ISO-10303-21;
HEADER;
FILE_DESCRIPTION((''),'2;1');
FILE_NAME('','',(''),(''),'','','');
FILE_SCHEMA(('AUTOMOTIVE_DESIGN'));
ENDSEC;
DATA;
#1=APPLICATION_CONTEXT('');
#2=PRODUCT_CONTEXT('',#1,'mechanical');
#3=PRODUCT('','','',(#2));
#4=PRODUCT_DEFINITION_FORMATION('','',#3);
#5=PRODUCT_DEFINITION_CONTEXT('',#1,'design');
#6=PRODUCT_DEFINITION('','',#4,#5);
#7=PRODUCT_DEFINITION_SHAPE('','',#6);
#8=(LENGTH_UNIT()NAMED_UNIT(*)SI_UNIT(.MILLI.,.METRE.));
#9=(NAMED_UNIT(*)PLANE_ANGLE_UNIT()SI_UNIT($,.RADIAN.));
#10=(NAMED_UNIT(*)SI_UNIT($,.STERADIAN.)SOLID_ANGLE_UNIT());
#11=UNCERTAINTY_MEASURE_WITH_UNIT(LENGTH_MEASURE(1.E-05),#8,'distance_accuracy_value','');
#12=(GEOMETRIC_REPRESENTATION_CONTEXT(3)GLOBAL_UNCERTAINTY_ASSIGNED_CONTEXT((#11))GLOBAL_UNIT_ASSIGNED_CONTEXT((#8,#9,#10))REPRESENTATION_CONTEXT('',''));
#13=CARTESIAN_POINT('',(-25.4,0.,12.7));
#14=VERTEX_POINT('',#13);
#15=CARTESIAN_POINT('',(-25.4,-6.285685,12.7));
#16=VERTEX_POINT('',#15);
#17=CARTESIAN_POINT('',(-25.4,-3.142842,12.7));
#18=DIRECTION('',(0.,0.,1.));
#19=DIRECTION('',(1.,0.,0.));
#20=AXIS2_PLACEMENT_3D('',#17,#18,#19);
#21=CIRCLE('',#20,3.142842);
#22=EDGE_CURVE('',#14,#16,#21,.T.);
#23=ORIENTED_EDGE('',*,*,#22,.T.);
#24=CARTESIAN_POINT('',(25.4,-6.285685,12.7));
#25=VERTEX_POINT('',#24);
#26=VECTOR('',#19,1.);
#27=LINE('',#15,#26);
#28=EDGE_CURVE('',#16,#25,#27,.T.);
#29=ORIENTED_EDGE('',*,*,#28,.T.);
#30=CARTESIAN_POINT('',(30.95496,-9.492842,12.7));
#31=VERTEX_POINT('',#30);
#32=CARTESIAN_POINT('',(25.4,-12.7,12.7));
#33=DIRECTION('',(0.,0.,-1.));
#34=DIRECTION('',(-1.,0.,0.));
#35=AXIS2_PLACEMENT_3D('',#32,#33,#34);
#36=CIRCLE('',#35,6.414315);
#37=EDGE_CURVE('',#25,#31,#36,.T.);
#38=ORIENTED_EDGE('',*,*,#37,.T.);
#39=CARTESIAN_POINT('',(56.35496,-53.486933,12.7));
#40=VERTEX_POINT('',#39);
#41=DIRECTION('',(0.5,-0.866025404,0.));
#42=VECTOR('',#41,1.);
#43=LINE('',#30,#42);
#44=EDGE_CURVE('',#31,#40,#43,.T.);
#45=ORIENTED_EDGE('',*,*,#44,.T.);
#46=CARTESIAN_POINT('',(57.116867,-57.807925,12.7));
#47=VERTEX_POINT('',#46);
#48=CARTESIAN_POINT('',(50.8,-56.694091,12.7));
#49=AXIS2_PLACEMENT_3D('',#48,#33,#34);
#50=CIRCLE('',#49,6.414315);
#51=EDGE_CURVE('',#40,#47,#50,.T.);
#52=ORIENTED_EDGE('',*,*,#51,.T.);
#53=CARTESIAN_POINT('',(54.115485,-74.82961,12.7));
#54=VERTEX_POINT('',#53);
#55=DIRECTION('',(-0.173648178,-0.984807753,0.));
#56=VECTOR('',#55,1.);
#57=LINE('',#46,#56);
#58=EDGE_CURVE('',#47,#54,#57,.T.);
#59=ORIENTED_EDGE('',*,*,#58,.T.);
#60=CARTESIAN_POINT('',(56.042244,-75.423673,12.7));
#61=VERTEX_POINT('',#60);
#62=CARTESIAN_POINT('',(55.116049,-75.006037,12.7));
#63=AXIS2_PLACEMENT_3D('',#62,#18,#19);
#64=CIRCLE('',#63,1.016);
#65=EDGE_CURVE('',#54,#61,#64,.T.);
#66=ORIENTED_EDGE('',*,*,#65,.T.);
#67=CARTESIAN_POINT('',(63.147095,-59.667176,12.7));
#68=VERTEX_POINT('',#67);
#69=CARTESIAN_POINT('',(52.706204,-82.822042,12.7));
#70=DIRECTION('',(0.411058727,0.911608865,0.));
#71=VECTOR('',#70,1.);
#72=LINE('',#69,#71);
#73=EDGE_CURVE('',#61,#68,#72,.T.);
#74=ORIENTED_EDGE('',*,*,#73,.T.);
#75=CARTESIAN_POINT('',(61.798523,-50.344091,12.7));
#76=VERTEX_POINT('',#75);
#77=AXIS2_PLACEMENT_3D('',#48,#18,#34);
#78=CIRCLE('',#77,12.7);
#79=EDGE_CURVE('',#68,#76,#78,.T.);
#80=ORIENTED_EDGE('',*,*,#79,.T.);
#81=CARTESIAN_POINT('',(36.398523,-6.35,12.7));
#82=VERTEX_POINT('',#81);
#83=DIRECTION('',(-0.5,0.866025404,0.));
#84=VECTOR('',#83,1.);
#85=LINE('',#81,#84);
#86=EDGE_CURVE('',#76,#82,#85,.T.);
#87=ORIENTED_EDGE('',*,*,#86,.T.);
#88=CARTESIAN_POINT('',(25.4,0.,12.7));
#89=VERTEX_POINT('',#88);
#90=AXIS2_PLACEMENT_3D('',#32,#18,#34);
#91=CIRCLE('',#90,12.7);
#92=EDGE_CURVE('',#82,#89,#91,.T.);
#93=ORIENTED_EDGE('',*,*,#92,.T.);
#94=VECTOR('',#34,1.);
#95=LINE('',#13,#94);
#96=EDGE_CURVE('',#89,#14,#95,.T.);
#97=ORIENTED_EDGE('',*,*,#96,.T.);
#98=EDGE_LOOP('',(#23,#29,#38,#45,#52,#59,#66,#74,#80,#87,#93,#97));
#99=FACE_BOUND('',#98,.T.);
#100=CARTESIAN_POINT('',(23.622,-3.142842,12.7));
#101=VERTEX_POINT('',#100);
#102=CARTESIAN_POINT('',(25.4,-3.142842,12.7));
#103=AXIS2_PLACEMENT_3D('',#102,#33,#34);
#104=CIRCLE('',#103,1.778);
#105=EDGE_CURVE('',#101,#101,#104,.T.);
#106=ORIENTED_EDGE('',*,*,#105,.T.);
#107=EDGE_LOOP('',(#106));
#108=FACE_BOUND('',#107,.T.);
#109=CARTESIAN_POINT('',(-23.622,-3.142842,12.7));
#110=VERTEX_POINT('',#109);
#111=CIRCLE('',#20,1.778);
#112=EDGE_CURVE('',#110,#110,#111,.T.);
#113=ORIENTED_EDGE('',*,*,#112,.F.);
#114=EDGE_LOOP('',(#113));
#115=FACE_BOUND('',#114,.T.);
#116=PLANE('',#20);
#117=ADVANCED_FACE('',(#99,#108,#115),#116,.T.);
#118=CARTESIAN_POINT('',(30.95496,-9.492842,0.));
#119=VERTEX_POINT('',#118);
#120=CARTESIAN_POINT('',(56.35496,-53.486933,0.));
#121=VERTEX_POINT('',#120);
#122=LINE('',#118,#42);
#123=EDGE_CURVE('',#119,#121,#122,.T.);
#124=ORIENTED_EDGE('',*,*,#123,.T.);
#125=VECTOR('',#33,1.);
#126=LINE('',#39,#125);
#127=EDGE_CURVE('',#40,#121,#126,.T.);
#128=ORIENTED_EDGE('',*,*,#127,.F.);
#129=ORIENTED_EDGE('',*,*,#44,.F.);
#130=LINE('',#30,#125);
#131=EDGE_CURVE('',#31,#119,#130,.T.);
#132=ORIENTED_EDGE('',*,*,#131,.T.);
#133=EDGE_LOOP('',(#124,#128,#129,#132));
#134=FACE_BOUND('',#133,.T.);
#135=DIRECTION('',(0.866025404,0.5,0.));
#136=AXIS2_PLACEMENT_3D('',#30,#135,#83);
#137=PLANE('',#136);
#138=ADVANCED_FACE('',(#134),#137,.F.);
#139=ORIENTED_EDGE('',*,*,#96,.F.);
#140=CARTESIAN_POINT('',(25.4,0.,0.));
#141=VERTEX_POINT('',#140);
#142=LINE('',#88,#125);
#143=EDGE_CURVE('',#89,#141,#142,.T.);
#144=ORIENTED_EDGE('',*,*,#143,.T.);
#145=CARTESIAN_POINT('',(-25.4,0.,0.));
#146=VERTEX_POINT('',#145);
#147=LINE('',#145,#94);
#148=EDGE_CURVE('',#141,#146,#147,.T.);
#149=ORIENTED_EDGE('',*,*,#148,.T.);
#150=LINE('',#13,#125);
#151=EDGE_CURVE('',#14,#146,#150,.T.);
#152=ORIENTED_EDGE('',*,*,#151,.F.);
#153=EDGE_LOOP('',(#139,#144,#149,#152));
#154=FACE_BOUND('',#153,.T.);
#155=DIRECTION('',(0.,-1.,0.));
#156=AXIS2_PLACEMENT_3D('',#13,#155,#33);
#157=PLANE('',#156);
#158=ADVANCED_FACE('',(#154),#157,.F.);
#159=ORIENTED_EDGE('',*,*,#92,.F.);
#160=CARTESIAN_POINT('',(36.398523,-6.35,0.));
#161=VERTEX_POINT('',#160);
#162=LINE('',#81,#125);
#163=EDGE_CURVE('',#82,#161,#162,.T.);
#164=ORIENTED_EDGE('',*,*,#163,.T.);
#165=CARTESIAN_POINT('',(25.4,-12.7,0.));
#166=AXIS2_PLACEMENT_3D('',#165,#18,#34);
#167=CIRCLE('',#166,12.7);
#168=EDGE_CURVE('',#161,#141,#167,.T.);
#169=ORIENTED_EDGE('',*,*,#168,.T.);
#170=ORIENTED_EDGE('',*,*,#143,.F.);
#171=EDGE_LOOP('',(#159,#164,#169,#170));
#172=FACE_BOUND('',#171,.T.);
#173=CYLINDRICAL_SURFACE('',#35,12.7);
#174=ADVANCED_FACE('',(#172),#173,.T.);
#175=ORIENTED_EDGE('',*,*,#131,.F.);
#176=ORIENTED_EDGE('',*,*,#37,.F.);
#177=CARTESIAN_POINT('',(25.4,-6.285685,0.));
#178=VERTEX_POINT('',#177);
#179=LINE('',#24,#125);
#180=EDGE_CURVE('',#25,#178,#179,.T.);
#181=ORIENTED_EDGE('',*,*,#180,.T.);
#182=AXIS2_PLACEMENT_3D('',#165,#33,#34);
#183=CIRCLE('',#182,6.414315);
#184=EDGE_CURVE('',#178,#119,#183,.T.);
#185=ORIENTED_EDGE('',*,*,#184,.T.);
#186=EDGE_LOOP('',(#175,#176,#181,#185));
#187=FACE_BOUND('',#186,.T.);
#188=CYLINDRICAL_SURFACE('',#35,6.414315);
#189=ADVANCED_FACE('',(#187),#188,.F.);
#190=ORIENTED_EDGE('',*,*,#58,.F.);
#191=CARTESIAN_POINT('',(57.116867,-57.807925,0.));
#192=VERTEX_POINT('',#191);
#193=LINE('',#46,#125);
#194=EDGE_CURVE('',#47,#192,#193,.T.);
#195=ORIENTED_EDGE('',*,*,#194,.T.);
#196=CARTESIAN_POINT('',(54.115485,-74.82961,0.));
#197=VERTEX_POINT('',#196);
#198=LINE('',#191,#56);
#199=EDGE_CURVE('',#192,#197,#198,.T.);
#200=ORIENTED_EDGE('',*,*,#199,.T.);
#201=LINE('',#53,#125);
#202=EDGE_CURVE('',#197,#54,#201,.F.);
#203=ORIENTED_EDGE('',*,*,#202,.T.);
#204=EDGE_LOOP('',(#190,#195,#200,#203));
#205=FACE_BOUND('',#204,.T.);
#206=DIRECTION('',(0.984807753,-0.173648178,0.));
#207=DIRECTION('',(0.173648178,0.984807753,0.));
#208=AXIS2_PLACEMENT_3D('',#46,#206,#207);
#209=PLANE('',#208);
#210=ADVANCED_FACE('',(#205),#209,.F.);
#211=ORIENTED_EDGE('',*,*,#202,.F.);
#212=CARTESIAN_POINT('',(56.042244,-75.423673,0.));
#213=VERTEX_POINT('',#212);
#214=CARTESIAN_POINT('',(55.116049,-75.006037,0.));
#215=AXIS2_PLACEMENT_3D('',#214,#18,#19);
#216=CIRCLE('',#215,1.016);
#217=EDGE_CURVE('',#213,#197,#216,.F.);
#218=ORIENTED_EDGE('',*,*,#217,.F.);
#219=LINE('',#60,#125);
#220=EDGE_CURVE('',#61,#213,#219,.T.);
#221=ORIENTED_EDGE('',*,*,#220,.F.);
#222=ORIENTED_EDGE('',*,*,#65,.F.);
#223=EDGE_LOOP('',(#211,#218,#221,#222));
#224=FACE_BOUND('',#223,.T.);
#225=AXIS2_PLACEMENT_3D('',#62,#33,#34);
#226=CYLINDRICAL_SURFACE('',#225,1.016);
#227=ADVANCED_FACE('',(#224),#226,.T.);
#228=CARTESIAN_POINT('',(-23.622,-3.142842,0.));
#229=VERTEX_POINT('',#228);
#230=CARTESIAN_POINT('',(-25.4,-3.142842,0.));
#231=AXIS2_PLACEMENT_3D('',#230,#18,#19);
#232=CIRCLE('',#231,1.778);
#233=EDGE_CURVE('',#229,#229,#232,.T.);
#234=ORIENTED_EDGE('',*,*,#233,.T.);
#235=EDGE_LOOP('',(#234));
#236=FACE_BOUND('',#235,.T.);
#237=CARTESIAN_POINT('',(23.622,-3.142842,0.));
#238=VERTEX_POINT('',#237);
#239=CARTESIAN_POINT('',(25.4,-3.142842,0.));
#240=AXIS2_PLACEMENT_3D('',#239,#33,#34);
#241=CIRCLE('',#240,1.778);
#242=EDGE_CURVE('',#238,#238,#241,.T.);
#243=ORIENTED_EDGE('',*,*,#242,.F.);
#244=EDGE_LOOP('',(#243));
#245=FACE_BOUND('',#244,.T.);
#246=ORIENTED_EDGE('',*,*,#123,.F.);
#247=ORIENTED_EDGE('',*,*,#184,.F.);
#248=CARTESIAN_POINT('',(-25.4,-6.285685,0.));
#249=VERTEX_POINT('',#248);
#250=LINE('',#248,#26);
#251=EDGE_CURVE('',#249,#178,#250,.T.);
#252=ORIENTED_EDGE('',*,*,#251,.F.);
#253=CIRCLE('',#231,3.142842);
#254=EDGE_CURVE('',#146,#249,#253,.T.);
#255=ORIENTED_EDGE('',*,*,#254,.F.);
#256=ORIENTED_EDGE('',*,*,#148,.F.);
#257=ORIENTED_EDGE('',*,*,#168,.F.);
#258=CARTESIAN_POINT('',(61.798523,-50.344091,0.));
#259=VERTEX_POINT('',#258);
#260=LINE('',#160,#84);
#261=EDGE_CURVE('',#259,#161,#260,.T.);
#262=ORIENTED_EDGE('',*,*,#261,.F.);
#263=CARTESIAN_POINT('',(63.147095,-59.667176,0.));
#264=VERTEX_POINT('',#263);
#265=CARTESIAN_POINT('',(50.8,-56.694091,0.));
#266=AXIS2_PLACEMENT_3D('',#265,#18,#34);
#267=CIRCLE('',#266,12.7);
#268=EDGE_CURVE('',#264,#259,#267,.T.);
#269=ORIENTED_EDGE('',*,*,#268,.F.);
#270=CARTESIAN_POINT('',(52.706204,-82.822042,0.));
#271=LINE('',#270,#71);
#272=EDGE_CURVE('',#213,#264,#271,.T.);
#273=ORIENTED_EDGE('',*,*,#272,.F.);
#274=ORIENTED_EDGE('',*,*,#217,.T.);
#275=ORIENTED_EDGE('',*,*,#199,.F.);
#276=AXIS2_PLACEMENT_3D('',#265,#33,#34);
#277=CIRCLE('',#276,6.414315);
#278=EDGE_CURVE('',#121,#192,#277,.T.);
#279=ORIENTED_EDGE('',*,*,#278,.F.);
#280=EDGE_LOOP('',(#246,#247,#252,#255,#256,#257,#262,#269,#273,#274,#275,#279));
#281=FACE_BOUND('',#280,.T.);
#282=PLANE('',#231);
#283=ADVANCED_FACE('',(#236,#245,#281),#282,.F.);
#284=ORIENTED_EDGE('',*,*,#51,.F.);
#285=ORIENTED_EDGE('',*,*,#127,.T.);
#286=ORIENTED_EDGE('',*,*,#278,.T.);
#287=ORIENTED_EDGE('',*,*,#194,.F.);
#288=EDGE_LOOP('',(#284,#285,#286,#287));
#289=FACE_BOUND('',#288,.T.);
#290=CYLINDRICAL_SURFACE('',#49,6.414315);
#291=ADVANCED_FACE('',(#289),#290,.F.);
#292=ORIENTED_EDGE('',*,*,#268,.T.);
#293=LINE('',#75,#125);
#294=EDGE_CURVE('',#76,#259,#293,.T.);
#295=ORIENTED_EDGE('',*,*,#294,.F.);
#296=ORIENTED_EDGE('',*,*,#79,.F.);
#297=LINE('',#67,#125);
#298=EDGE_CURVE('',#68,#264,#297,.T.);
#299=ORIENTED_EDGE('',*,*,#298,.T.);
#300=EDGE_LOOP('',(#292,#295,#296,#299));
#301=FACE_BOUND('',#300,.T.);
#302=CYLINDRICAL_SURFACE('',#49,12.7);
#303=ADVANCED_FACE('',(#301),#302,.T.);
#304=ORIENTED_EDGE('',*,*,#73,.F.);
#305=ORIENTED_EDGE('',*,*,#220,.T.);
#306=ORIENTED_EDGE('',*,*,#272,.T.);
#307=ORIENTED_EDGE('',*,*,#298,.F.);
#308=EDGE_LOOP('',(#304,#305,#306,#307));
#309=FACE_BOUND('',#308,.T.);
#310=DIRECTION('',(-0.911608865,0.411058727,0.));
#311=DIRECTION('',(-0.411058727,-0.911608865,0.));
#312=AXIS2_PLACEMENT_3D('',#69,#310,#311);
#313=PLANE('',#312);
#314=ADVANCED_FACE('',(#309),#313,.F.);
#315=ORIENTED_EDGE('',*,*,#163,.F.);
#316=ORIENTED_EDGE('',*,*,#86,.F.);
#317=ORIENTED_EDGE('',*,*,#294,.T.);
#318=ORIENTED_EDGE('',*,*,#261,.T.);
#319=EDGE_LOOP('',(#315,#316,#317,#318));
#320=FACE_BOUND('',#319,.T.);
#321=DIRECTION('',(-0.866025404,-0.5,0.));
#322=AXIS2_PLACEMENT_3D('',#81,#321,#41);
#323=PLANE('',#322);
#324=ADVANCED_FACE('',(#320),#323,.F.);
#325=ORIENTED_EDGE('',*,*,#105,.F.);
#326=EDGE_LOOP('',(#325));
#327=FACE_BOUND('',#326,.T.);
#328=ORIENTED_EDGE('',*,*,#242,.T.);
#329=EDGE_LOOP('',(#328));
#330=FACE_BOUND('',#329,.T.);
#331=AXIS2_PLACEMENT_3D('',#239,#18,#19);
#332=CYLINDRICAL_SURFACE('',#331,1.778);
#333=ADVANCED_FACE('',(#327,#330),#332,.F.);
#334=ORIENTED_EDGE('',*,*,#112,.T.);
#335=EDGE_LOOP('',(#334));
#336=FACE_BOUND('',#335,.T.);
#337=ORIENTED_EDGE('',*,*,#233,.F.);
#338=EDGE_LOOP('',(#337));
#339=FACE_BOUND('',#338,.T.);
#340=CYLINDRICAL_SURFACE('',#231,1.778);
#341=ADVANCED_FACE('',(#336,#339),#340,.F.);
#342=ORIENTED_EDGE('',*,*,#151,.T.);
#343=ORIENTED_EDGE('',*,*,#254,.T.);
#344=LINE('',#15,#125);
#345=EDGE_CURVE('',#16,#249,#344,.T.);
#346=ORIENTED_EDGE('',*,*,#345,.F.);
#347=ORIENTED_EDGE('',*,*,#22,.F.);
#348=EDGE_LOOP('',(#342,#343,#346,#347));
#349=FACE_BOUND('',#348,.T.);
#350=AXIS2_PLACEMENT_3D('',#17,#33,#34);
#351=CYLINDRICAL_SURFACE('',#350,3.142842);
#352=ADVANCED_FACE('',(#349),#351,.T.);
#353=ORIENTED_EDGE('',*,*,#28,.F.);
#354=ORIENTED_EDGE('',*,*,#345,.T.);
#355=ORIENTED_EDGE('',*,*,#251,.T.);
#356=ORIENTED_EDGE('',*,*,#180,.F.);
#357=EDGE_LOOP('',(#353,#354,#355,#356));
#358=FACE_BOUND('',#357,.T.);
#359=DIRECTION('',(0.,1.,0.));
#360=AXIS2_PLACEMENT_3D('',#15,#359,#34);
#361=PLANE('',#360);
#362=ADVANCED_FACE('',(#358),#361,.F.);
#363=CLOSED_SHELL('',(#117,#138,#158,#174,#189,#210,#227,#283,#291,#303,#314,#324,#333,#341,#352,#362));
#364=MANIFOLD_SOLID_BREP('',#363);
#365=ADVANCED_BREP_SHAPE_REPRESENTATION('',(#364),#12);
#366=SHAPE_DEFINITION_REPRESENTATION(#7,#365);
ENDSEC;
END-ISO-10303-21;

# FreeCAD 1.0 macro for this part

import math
import FreeCAD as App
import Part
import Sketcher
Q = App.Units.Quantity


def edges_at(feature, points):
    """Names of the edges that pass closest to the given points."""
    edges = feature.Shape.Edges
    near = lambda p: min(range(len(edges)), key=lambda i: edges[i].distToShape(Part.Vertex(*p))[0])
    return sorted({f"Edge{near(p) + 1}" for p in points})

doc = App.newDocument("Part")
body = doc.addObject("PartDesign::Body", "Body")

# Sketch on XY plane
sketch1 = body.newObject("Sketcher::SketchObject", "Sketch")
sketch1.AttachmentSupport = (doc.getObject("XY_Plane"), [""])
sketch1.MapMode = "FlatFace"
sketch1.addGeometry(Part.LineSegment(App.Vector(25.4, 0, 0), App.Vector(-25.4, 0, 0)), False)
sketch1.addGeometry(Part.ArcOfCircle(Part.Circle(App.Vector(-25.4, -3.1, 0), App.Vector(0, 0, 1), 3.1), math.radians(90), math.radians(270)), False)
sketch1.addGeometry(Part.LineSegment(App.Vector(-25.4, -6.3, 0), App.Vector(25.4, -6.3, 0)), False)
sketch1.addGeometry(Part.ArcOfCircle(Part.Circle(App.Vector(25.4, -12.7, 0), App.Vector(0, 0, 1), 6.4), math.radians(30), math.radians(90)), False)
sketch1.addGeometry(Part.LineSegment(App.Vector(31, -9.5, 0), App.Vector(56.4, -53.5, 0)), False)
sketch1.addGeometry(Part.ArcOfCircle(Part.Circle(App.Vector(50.8, -56.7, 0), App.Vector(0, 0, 1), 6.4), math.radians(-10), math.radians(30)), False)
sketch1.addGeometry(Part.LineSegment(App.Vector(57.1, -57.8, 0), App.Vector(52.7, -82.8, 0)), False)
sketch1.addGeometry(Part.LineSegment(App.Vector(52.7, -82.8, 0), App.Vector(63.1, -59.7, 0)), False)
sketch1.addGeometry(Part.ArcOfCircle(Part.Circle(App.Vector(50.8, -56.7, 0), App.Vector(0, 0, 1), 12.7), math.radians(-14), math.radians(30)), False)
sketch1.addGeometry(Part.LineSegment(App.Vector(61.8, -50.3, 0), App.Vector(36.4, -6.3, 0)), False)
sketch1.addGeometry(Part.ArcOfCircle(Part.Circle(App.Vector(25.4, -12.7, 0), App.Vector(0, 0, 1), 12.7), math.radians(30), math.radians(90)), False)
sketch1.addConstraint(Sketcher.Constraint("Tangent", 0, 2, 1, 1))
sketch1.addConstraint(Sketcher.Constraint("Tangent", 1, 2, 2, 1))
sketch1.addConstraint(Sketcher.Constraint("Tangent", 2, 2, 3, 2))
sketch1.addConstraint(Sketcher.Constraint("Tangent", 3, 1, 4, 1))
sketch1.addConstraint(Sketcher.Constraint("Tangent", 4, 2, 5, 2))
sketch1.addConstraint(Sketcher.Constraint("Tangent", 5, 1, 6, 1))
sketch1.addConstraint(Sketcher.Constraint("Coincident", 6, 2, 7, 1))
sketch1.addConstraint(Sketcher.Constraint("Coincident", 7, 2, 8, 1))
sketch1.addConstraint(Sketcher.Constraint("Tangent", 8, 2, 9, 1))
sketch1.addConstraint(Sketcher.Constraint("Tangent", 9, 2, 10, 1))
sketch1.addConstraint(Sketcher.Constraint("Tangent", 10, 2, 0, 1))
sketch1.addConstraint(Sketcher.Constraint("Horizontal", 0))
sketch1.addConstraint(Sketcher.Constraint("Horizontal", 2))
sketch1.addConstraint(Sketcher.Constraint("Coincident", 8, 3, 5, 3))
sketch1.addConstraint(Sketcher.Constraint("Coincident", 10, 3, 3, 3))
sketch1.addConstraint(Sketcher.Constraint("Equal", 3, 5))
sketch1.addConstraint(Sketcher.Constraint("Equal", 8, 10))
sketch1.addConstraint(Sketcher.Constraint("Symmetric", 0, 2, 10, 2, -1, 1))
sketch1.addConstraint(Sketcher.Constraint("Equal", 6, 7))
sketch1.addConstraint(Sketcher.Constraint("Radius", 8, Q("0.5 in")))
sketch1.addConstraint(Sketcher.Constraint("DistanceX", 0, 2, 0, 1, Q("2 in")))
sketch1.addConstraint(Sketcher.Constraint("Distance", 4, Q("2 in")))
sketch1.addConstraint(Sketcher.Constraint("Distance", 6, Q("1 in")))
sketch1.addConstraint(Sketcher.Constraint("DistanceX", -1, 1, 5, 3, Q("2 in")))
sketch1.addConstraint(Sketcher.Constraint("Angle", 6, Q("-100 deg")))
sketch1.addConstraint(Sketcher.Constraint("Radius", 1, Q("3.142842 mm")))
pad1 = body.newObject("PartDesign::Pad", "Pad")
pad1.Profile = sketch1
pad1.Length = Q("0.5 in")

# Sketch on XY plane
sketch2 = body.newObject("Sketcher::SketchObject", "Sketch001")
sketch2.AttachmentSupport = (doc.getObject("XY_Plane"), [""])
sketch2.MapMode = "FlatFace"
sketch2.AttachmentOffset = App.Placement(App.Vector(0, 0, 0.5 * 25.4), App.Rotation())
sketch2.addGeometry(Part.Circle(App.Vector(-25.4, -3.1, 0), App.Vector(0, 0, 1), 1.8), False)
sketch2.addConstraint(Sketcher.Constraint("Diameter", 0, Q("0.14 in")))
sketch2.addConstraint(Sketcher.Constraint("DistanceX", 0, 3, -1, 1, Q("1 in")))
sketch2.addConstraint(Sketcher.Constraint("DistanceY", 0, 3, -1, 1, Q("3.142842 mm")))
pocket1 = body.newObject("PartDesign::Pocket", "Pocket")
pocket1.Profile = sketch2
pocket1.Type = "ThroughAll"
doc.recompute()

mirrored = body.newObject("PartDesign::Mirrored", "Mirrored")
mirrored.Originals = [pocket1]
mirrored.MirrorPlane = (doc.getObject("YZ_Plane"), [""])
body.Tip = mirrored
doc.recompute()

fillet = body.newObject("PartDesign::Fillet", "Fillet")
fillet.Base = (mirrored, edges_at(mirrored, [(52.706, -82.822, 6.35)]))
fillet.Radius = Q("0.04 in")

doc.recompute()
